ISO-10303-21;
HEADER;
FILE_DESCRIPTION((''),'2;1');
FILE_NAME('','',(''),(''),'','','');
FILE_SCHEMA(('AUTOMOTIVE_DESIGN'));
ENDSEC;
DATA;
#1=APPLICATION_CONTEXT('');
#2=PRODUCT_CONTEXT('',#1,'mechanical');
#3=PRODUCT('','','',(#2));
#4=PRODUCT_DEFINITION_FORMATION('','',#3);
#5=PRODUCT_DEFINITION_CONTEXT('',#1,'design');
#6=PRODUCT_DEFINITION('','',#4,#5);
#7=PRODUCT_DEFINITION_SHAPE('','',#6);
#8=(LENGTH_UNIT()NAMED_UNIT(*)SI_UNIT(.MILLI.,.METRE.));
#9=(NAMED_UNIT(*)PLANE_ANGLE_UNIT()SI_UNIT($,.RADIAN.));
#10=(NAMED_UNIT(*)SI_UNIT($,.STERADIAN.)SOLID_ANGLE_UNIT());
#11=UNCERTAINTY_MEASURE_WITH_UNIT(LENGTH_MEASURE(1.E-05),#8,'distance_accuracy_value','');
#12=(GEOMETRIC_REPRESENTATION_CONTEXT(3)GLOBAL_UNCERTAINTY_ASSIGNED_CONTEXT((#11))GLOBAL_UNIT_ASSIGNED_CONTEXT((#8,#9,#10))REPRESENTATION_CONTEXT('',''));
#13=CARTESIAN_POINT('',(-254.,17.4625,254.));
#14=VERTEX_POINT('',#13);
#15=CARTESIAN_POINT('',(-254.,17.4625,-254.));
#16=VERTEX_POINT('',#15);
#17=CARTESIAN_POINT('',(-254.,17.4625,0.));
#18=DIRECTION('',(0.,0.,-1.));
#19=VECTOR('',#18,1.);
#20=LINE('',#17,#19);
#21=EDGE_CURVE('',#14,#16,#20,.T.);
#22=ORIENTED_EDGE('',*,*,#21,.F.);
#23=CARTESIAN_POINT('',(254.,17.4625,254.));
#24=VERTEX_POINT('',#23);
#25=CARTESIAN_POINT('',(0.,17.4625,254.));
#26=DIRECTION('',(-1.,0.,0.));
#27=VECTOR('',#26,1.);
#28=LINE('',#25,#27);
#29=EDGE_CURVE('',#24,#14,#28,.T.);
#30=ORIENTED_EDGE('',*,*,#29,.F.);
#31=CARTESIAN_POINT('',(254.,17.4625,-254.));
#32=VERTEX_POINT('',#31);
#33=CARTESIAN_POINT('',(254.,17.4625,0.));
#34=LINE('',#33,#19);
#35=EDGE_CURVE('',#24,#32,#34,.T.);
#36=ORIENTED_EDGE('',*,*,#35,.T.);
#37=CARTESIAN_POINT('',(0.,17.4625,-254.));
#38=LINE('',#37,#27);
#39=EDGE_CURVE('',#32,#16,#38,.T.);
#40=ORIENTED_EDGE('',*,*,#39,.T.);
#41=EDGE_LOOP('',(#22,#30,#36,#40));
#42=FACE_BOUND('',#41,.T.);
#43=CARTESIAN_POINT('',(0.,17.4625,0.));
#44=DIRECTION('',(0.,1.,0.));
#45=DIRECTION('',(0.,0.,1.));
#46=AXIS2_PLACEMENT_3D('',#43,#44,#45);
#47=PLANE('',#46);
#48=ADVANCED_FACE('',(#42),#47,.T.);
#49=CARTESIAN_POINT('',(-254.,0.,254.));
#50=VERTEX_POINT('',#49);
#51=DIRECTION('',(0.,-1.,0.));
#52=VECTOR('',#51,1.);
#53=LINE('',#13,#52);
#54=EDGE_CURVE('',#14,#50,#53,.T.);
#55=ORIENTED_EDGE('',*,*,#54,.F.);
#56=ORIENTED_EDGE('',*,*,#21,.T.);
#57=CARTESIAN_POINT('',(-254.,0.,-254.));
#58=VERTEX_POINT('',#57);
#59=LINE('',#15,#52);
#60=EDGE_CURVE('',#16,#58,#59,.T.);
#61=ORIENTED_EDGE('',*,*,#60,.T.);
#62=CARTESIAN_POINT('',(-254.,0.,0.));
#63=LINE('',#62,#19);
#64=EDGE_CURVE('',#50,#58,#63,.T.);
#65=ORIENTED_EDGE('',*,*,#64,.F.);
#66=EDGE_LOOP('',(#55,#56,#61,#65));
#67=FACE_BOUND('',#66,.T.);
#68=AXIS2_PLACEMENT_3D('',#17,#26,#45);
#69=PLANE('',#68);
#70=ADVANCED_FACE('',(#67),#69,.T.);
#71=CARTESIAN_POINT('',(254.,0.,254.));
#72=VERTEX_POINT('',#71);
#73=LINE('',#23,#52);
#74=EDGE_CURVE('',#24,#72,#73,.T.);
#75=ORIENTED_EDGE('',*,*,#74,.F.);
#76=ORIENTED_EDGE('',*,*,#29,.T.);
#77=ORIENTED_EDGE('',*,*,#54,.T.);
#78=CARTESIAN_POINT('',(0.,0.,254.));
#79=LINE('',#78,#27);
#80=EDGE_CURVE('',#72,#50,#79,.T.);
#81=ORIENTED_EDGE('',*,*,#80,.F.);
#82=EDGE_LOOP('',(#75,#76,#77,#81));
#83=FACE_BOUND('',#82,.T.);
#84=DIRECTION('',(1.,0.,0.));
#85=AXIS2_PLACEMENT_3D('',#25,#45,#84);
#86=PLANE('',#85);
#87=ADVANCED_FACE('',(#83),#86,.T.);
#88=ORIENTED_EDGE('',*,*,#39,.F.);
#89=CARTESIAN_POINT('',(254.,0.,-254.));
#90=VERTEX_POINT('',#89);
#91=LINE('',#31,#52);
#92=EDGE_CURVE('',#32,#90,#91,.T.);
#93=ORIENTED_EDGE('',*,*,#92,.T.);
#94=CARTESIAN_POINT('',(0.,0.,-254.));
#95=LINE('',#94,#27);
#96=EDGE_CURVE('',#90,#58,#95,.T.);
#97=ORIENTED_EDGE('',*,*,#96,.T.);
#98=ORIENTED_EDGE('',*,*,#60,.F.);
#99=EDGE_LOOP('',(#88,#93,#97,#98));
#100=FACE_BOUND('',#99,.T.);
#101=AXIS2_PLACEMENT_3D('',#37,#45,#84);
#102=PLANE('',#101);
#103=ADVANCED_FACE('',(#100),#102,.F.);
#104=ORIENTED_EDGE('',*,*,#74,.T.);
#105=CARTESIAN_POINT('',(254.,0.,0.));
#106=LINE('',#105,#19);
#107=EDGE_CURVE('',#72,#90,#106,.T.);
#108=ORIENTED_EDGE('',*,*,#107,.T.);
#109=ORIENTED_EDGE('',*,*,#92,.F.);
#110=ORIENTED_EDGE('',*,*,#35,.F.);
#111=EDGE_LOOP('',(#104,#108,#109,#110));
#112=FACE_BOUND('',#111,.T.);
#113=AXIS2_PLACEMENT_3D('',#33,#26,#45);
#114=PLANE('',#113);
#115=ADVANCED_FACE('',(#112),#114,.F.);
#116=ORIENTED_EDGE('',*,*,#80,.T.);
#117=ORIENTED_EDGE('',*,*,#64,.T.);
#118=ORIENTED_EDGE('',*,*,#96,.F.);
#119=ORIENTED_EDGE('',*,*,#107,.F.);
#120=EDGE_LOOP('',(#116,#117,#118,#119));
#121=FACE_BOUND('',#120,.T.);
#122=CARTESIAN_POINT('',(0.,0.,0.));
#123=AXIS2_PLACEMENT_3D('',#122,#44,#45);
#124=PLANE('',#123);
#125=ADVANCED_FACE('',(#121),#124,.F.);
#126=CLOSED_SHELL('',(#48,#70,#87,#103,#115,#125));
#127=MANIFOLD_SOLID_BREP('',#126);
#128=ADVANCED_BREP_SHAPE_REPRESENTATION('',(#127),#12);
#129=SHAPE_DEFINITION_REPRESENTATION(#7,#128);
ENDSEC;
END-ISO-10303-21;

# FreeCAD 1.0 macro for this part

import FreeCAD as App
import Part
import Sketcher
Q = App.Units.Quantity


def add_polygon(sketch, points):
    """Adds a closed chain of lines whose ends are joined by coincident constraints."""
    first, n = sketch.GeometryCount, len(points)
    for a, b in zip(points, points[1:] + points[:1]):
        sketch.addGeometry(Part.LineSegment(App.Vector(*a, 0), App.Vector(*b, 0)), False)
    for i in range(n):
        sketch.addConstraint(Sketcher.Constraint("Coincident", first + i, 2, first + (i + 1) % n, 1))

doc = App.newDocument("Part")
body = doc.addObject("PartDesign::Body", "Body")

# Sketch on XZ plane
sketch1 = doc.addObject("Sketcher::SketchObject", "Sketch")
body.addObject(sketch1)
sketch1.AttachmentSupport = (doc.XZ_Plane, [""])
sketch1.MapMode = "FlatFace"
add_polygon(sketch1, [(-254, -254), (-254, 254), (254, 254), (254, -254)])  # lines 0-3
sketch1.addConstraint([
    Sketcher.Constraint("Vertical", 0),
    Sketcher.Constraint("Horizontal", 1),
    Sketcher.Constraint("Vertical", 2),
    Sketcher.Constraint("Horizontal", 3),
    Sketcher.Constraint("Symmetric", 0, 2, 2, 2, -1, 1),
    Sketcher.Constraint("Equal", 3, 0),
    Sketcher.Constraint("DistanceX", 1, 1, 1, 2, Q("20 in")),
])
pad1 = doc.addObject("PartDesign::Pad", "Pad")
body.addObject(pad1)
pad1.Profile = sketch1
pad1.Length = Q("0.6875 in")
pad1.Reversed = True

doc.recompute()
